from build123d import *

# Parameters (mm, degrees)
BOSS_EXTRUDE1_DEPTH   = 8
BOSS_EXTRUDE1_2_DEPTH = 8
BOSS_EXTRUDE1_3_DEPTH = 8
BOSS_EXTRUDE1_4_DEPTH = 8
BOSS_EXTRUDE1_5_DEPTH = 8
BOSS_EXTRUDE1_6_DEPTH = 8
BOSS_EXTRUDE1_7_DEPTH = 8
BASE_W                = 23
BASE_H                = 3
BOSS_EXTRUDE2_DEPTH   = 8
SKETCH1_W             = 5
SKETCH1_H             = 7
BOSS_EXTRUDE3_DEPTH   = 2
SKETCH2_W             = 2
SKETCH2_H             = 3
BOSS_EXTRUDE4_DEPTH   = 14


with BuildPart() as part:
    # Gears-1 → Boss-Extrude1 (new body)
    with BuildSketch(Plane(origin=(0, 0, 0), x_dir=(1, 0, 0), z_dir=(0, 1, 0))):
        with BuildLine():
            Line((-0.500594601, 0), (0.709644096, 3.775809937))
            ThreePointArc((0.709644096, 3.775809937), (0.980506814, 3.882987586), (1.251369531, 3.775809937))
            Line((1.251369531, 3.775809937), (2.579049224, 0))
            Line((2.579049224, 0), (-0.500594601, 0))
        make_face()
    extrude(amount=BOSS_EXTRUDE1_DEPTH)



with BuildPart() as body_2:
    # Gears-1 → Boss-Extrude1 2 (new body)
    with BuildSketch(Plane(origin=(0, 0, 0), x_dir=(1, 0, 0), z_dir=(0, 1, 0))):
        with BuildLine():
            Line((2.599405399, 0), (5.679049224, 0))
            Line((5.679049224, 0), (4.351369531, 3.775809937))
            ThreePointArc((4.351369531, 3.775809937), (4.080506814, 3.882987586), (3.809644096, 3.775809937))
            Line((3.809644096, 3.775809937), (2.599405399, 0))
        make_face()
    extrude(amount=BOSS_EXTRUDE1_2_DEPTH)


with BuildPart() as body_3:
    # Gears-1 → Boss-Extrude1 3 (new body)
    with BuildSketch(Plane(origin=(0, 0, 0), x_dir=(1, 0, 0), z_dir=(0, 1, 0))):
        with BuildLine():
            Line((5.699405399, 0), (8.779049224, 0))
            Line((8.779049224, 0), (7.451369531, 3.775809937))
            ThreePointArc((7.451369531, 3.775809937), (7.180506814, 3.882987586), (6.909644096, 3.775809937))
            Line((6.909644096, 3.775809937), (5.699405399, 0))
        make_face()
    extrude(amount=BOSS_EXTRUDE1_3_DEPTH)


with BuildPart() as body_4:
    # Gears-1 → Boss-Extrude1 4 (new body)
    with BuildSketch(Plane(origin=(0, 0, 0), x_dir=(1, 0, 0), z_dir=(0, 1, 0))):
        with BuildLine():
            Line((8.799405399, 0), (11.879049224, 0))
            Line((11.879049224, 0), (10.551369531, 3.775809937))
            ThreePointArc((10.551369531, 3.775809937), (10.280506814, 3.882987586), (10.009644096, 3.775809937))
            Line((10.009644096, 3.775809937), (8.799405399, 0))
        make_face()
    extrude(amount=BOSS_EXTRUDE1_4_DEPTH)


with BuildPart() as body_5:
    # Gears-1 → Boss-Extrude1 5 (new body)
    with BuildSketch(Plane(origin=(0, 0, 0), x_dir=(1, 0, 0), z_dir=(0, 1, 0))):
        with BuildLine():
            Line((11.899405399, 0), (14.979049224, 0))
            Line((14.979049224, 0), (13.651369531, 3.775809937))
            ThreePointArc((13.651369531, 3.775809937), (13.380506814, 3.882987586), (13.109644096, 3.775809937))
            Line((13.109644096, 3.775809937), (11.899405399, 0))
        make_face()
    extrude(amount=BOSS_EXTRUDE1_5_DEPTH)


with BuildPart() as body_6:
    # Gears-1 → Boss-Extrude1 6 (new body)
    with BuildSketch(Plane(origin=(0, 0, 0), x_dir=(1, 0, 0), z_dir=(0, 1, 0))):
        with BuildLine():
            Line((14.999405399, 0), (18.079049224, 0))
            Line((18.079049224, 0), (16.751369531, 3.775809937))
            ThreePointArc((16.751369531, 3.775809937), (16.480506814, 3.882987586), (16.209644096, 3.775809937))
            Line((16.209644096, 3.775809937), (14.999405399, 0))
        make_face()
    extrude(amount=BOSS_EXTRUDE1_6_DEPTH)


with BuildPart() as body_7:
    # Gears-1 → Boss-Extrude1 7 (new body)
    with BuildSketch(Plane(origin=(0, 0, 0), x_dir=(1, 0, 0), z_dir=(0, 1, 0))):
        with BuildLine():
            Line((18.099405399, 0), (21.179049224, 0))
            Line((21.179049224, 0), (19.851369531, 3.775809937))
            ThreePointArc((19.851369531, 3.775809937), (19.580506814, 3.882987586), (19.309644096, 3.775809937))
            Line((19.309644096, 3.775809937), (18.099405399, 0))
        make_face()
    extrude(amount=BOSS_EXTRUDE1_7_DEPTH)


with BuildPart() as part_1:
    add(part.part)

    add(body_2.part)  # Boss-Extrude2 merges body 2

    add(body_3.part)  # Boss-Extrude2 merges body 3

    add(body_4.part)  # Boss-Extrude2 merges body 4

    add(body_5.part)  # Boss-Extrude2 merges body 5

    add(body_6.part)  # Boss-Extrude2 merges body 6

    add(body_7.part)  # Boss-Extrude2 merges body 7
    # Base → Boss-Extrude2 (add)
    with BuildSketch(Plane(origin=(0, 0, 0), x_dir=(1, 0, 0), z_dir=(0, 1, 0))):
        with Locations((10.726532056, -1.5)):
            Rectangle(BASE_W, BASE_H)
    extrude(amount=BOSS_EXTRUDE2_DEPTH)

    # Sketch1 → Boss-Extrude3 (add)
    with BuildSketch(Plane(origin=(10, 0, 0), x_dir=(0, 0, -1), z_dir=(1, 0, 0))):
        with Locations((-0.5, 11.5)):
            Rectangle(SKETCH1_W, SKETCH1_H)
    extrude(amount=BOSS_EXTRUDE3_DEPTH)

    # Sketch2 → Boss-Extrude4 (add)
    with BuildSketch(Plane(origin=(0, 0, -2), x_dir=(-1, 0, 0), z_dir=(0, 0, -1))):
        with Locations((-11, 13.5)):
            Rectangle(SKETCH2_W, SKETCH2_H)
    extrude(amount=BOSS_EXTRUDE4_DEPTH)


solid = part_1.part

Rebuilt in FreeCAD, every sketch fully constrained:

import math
import FreeCAD as App
import Part
import Sketcher

V = App.Vector


def add_polygon(sketch, points):
    """Adds a closed chain of lines whose ends are joined by coincident constraints."""
    first, n = sketch.GeometryCount, len(points)
    for a, b in zip(points, points[1:] + points[:1]):
        sketch.addGeometry(Part.LineSegment(App.Vector(*a, 0), App.Vector(*b, 0)), False)
    for i in range(n):
        sketch.addConstraint(Sketcher.Constraint("Coincident", first + i, 2, first + (i + 1) % n, 1))

doc = App.newDocument("Part")
body = doc.addObject("PartDesign::Body", "Body")

sketch1 = body.newObject("Sketcher::SketchObject", "Sketch")
sketch1.AttachmentSupport = (doc.getObject("XZ_Plane"), [""])
sketch1.MapMode = "FlatFace"
sketch1.addGeometry([
    Part.LineSegment(V(0.71, -3.78, 0), V(-0.5, 0, 0)),
    Part.LineSegment(V(-0.5, 0, 0), V(2.58, 0, 0)),
    Part.LineSegment(V(2.58, 0, 0), V(1.25, -3.78, 0)),
    Part.ArcOfCircle(Part.Circle(V(0.98, -3.49, 0), V(0, 0, 1), 0.4), math.radians(-133), math.radians(-47)),
], False)
sketch1.addConstraint([
    Sketcher.Constraint("Coincident", 0, 2, 1, 1),
    Sketcher.Constraint("Coincident", 1, 2, 2, 1),
    Sketcher.Constraint("Coincident", 2, 2, 3, 2),
    Sketcher.Constraint("Coincident", 3, 1, 0, 1),
    Sketcher.Constraint("Horizontal", 1),
    Sketcher.Constraint("PointOnObject", 0, 2, -1),
    Sketcher.Constraint("Horizontal", 2, 2, 3, 1),
    Sketcher.Constraint("Radius", 3, 0.395855),
    Sketcher.Constraint("DistanceX", 0, 2, 3, 3, 1.481101),
    Sketcher.Constraint("DistanceX", 1, 1, 1, 2, 3.079644),
    Sketcher.Constraint("DistanceX", -1, 1, 1, 2, 2.579049),
    Sketcher.Constraint("DistanceX", -1, 1, 2, 2, 1.25137),
    Sketcher.Constraint("DistanceY", 2, 2, -1, 1, 3.77581),
])
pad1 = body.newObject("PartDesign::Pad", "Pad")
pad1.Profile = sketch1
pad1.Length = 8
pad1.Reversed = True
body2 = doc.addObject("PartDesign::Body", "Body001")

sketch2 = body2.newObject("Sketcher::SketchObject", "Sketch001")
sketch2.AttachmentSupport = (doc.getObject("XZ_Plane001"), [""])
sketch2.MapMode = "FlatFace"
sketch2.addGeometry([
    Part.LineSegment(V(2.6, 0, 0), V(5.68, 0, 0)),
    Part.LineSegment(V(5.68, 0, 0), V(4.35, -3.78, 0)),
    Part.ArcOfCircle(Part.Circle(V(4.08, -3.49, 0), V(0, 0, 1), 0.4), math.radians(-133), math.radians(-47)),
    Part.LineSegment(V(3.81, -3.78, 0), V(2.6, 0, 0)),
], False)
sketch2.addConstraint([
    Sketcher.Constraint("Coincident", 0, 2, 1, 1),
    Sketcher.Constraint("Coincident", 1, 2, 2, 2),
    Sketcher.Constraint("Coincident", 2, 1, 3, 1),
    Sketcher.Constraint("Coincident", 3, 2, 0, 1),
    Sketcher.Constraint("Horizontal", 0),
    Sketcher.Constraint("PointOnObject", 0, 2, -1),
    Sketcher.Constraint("Horizontal", 1, 2, 2, 1),
    Sketcher.Constraint("Radius", 2, 0.395855),
    Sketcher.Constraint("DistanceX", 3, 2, 2, 3, 1.481101),
    Sketcher.Constraint("DistanceX", 0, 1, 0, 2, 3.079644),
    Sketcher.Constraint("DistanceX", -1, 1, 0, 2, 5.679049),
    Sketcher.Constraint("DistanceX", -1, 1, 1, 2, 4.35137),
    Sketcher.Constraint("DistanceY", 1, 2, -1, 1, 3.77581),
])
pad2 = body2.newObject("PartDesign::Pad", "Pad001")
pad2.Profile = sketch2
pad2.Length = 8
pad2.Reversed = True
body3 = doc.addObject("PartDesign::Body", "Body002")

sketch3 = body3.newObject("Sketcher::SketchObject", "Sketch002")
sketch3.AttachmentSupport = (doc.getObject("XZ_Plane002"), [""])
sketch3.MapMode = "FlatFace"
sketch3.addGeometry([
    Part.LineSegment(V(5.7, 0, 0), V(8.78, 0, 0)),
    Part.LineSegment(V(8.78, 0, 0), V(7.45, -3.78, 0)),
    Part.ArcOfCircle(Part.Circle(V(7.18, -3.49, 0), V(0, 0, 1), 0.4), math.radians(-133), math.radians(-47)),
    Part.LineSegment(V(6.91, -3.78, 0), V(5.7, 0, 0)),
], False)
sketch3.addConstraint([
    Sketcher.Constraint("Coincident", 0, 2, 1, 1),
    Sketcher.Constraint("Coincident", 1, 2, 2, 2),
    Sketcher.Constraint("Coincident", 2, 1, 3, 1),
    Sketcher.Constraint("Coincident", 3, 2, 0, 1),
    Sketcher.Constraint("Horizontal", 0),
    Sketcher.Constraint("PointOnObject", 0, 2, -1),
    Sketcher.Constraint("Horizontal", 1, 2, 2, 1),
    Sketcher.Constraint("Radius", 2, 0.395855),
    Sketcher.Constraint("DistanceX", 3, 2, 2, 3, 1.481101),
    Sketcher.Constraint("DistanceX", 0, 1, 0, 2, 3.079644),
    Sketcher.Constraint("DistanceX", -1, 1, 0, 2, 8.779049),
    Sketcher.Constraint("DistanceX", -1, 1, 1, 2, 7.45137),
    Sketcher.Constraint("DistanceY", 1, 2, -1, 1, 3.77581),
])
pad3 = body3.newObject("PartDesign::Pad", "Pad002")
pad3.Profile = sketch3
pad3.Length = 8
pad3.Reversed = True
body4 = doc.addObject("PartDesign::Body", "Body003")

sketch4 = body4.newObject("Sketcher::SketchObject", "Sketch003")
sketch4.AttachmentSupport = (doc.getObject("XZ_Plane003"), [""])
sketch4.MapMode = "FlatFace"
sketch4.addGeometry([
    Part.LineSegment(V(8.8, 0, 0), V(11.88, 0, 0)),
    Part.LineSegment(V(11.88, 0, 0), V(10.55, -3.78, 0)),
    Part.ArcOfCircle(Part.Circle(V(10.28, -3.49, 0), V(0, 0, 1), 0.4), math.radians(-133), math.radians(-47)),
    Part.LineSegment(V(10.01, -3.78, 0), V(8.8, 0, 0)),
], False)
sketch4.addConstraint([
    Sketcher.Constraint("Coincident", 0, 2, 1, 1),
    Sketcher.Constraint("Coincident", 1, 2, 2, 2),
    Sketcher.Constraint("Coincident", 2, 1, 3, 1),
    Sketcher.Constraint("Coincident", 3, 2, 0, 1),
    Sketcher.Constraint("Horizontal", 0),
    Sketcher.Constraint("PointOnObject", 0, 2, -1),
    Sketcher.Constraint("Horizontal", 1, 2, 2, 1),
    Sketcher.Constraint("Radius", 2, 0.395855),
    Sketcher.Constraint("DistanceX", 3, 2, 2, 3, 1.481101),
    Sketcher.Constraint("DistanceX", 0, 1, 0, 2, 3.079644),
    Sketcher.Constraint("DistanceX", -1, 1, 0, 2, 11.879049),
    Sketcher.Constraint("DistanceX", -1, 1, 1, 2, 10.55137),
    Sketcher.Constraint("DistanceY", 1, 2, -1, 1, 3.77581),
])
pad4 = body4.newObject("PartDesign::Pad", "Pad003")
pad4.Profile = sketch4
pad4.Length = 8
pad4.Reversed = True
body5 = doc.addObject("PartDesign::Body", "Body004")

sketch5 = body5.newObject("Sketcher::SketchObject", "Sketch004")
sketch5.AttachmentSupport = (doc.getObject("XZ_Plane004"), [""])
sketch5.MapMode = "FlatFace"
sketch5.addGeometry([
    Part.LineSegment(V(11.9, 0, 0), V(14.98, 0, 0)),
    Part.LineSegment(V(14.98, 0, 0), V(13.65, -3.78, 0)),
    Part.ArcOfCircle(Part.Circle(V(13.38, -3.49, 0), V(0, 0, 1), 0.4), math.radians(-133), math.radians(-47)),
    Part.LineSegment(V(13.11, -3.78, 0), V(11.9, 0, 0)),
], False)
sketch5.addConstraint([
    Sketcher.Constraint("Coincident", 0, 2, 1, 1),
    Sketcher.Constraint("Coincident", 1, 2, 2, 2),
    Sketcher.Constraint("Coincident", 2, 1, 3, 1),
    Sketcher.Constraint("Coincident", 3, 2, 0, 1),
    Sketcher.Constraint("Horizontal", 0),
    Sketcher.Constraint("PointOnObject", 0, 2, -1),
    Sketcher.Constraint("Horizontal", 1, 2, 2, 1),
    Sketcher.Constraint("Radius", 2, 0.395855),
    Sketcher.Constraint("DistanceX", 3, 2, 2, 3, 1.481101),
    Sketcher.Constraint("DistanceX", 0, 1, 0, 2, 3.079644),
    Sketcher.Constraint("DistanceX", -1, 1, 0, 2, 14.979049),
    Sketcher.Constraint("DistanceX", -1, 1, 1, 2, 13.65137),
    Sketcher.Constraint("DistanceY", 1, 2, -1, 1, 3.77581),
])
pad5 = body5.newObject("PartDesign::Pad", "Pad004")
pad5.Profile = sketch5
pad5.Length = 8
pad5.Reversed = True
body6 = doc.addObject("PartDesign::Body", "Body005")

sketch6 = body6.newObject("Sketcher::SketchObject", "Sketch005")
sketch6.AttachmentSupport = (doc.getObject("XZ_Plane005"), [""])
sketch6.MapMode = "FlatFace"
sketch6.addGeometry([
    Part.LineSegment(V(15, 0, 0), V(18.08, 0, 0)),
    Part.LineSegment(V(18.08, 0, 0), V(16.75, -3.78, 0)),
    Part.ArcOfCircle(Part.Circle(V(16.48, -3.49, 0), V(0, 0, 1), 0.4), math.radians(-133), math.radians(-47)),
    Part.LineSegment(V(16.21, -3.78, 0), V(15, 0, 0)),
], False)
sketch6.addConstraint([
    Sketcher.Constraint("Coincident", 0, 2, 1, 1),
    Sketcher.Constraint("Coincident", 1, 2, 2, 2),
    Sketcher.Constraint("Coincident", 2, 1, 3, 1),
    Sketcher.Constraint("Coincident", 3, 2, 0, 1),
    Sketcher.Constraint("Horizontal", 0),
    Sketcher.Constraint("PointOnObject", 0, 2, -1),
    Sketcher.Constraint("Horizontal", 1, 2, 2, 1),
    Sketcher.Constraint("Radius", 2, 0.395855),
    Sketcher.Constraint("DistanceX", 3, 2, 2, 3, 1.481101),
    Sketcher.Constraint("DistanceX", 0, 1, 0, 2, 3.079644),
    Sketcher.Constraint("DistanceX", -1, 1, 0, 2, 18.079049),
    Sketcher.Constraint("DistanceX", -1, 1, 1, 2, 16.75137),
    Sketcher.Constraint("DistanceY", 1, 2, -1, 1, 3.77581),
])
pad6 = body6.newObject("PartDesign::Pad", "Pad005")
pad6.Profile = sketch6
pad6.Length = 8
pad6.Reversed = True
body7 = doc.addObject("PartDesign::Body", "Body006")

sketch7 = body7.newObject("Sketcher::SketchObject", "Sketch006")
sketch7.AttachmentSupport = (doc.getObject("XZ_Plane006"), [""])
sketch7.MapMode = "FlatFace"
sketch7.addGeometry([
    Part.LineSegment(V(18.1, 0, 0), V(21.18, 0, 0)),
    Part.LineSegment(V(21.18, 0, 0), V(19.85, -3.78, 0)),
    Part.ArcOfCircle(Part.Circle(V(19.58, -3.49, 0), V(0, 0, 1), 0.4), math.radians(-133), math.radians(-47)),
    Part.LineSegment(V(19.31, -3.78, 0), V(18.1, 0, 0)),
], False)
sketch7.addConstraint([
    Sketcher.Constraint("Coincident", 0, 2, 1, 1),
    Sketcher.Constraint("Coincident", 1, 2, 2, 2),
    Sketcher.Constraint("Coincident", 2, 1, 3, 1),
    Sketcher.Constraint("Coincident", 3, 2, 0, 1),
    Sketcher.Constraint("Horizontal", 0),
    Sketcher.Constraint("PointOnObject", 0, 2, -1),
    Sketcher.Constraint("Horizontal", 1, 2, 2, 1),
    Sketcher.Constraint("Radius", 2, 0.395855),
    Sketcher.Constraint("DistanceX", 3, 2, 2, 3, 1.481101),
    Sketcher.Constraint("DistanceX", 0, 1, 0, 2, 3.079644),
    Sketcher.Constraint("DistanceX", -1, 1, 0, 2, 21.179049),
    Sketcher.Constraint("DistanceX", -1, 1, 1, 2, 19.85137),
    Sketcher.Constraint("DistanceY", 1, 2, -1, 1, 3.77581),
])
pad7 = body7.newObject("PartDesign::Pad", "Pad006")
pad7.Profile = sketch7
pad7.Length = 8
pad7.Reversed = True
body.AllowCompound = True
doc.recompute()

boolean = body.newObject("PartDesign::Boolean", "Boolean")
boolean.Type = "Fuse"
boolean.addObjects([body2])
doc.recompute()

boolean2 = body.newObject("PartDesign::Boolean", "Boolean001")
boolean2.Type = "Fuse"
boolean2.addObjects([body3])
doc.recompute()

boolean3 = body.newObject("PartDesign::Boolean", "Boolean002")
boolean3.Type = "Fuse"
boolean3.addObjects([body4])
doc.recompute()

boolean4 = body.newObject("PartDesign::Boolean", "Boolean003")
boolean4.Type = "Fuse"
boolean4.addObjects([body5])
doc.recompute()

boolean5 = body.newObject("PartDesign::Boolean", "Boolean004")
boolean5.Type = "Fuse"
boolean5.addObjects([body6])
doc.recompute()

boolean6 = body.newObject("PartDesign::Boolean", "Boolean005")
boolean6.Type = "Fuse"
boolean6.addObjects([body7])

sketch8 = body.newObject("Sketcher::SketchObject", "Sketch007")
sketch8.AttachmentSupport = (doc.getObject("XZ_Plane"), [""])
sketch8.MapMode = "FlatFace"
add_polygon(sketch8, [(-0.8, 0), (-0.8, 3), (22.2, 3), (22.2, 0)])
sketch8.addConstraint([
    Sketcher.Constraint("Vertical", 0),
    Sketcher.Constraint("Horizontal", 1),
    Sketcher.Constraint("Vertical", 2),
    Sketcher.Constraint("Horizontal", 3),
    Sketcher.Constraint("PointOnObject", 2, 2, -1),
    Sketcher.Constraint("DistanceX", 1, 1, 1, 2, 23.0),
    Sketcher.Constraint("DistanceY", 0, 1, 0, 2, 3.0),
    Sketcher.Constraint("DistanceX", 0, 2, -1, 1, 0.773468),
])
pad8 = body.newObject("PartDesign::Pad", "Pad007")
pad8.Profile = sketch8
pad8.Length = 8
pad8.Reversed = True

sketch9 = body.newObject("Sketcher::SketchObject", "Sketch008")
sketch9.AttachmentSupport = (doc.getObject("YZ_Plane"), [""])
sketch9.MapMode = "FlatFace"
sketch9.AttachmentOffset = App.Placement(V(0, 0, 10), App.Rotation())
add_polygon(sketch9, [(15, 3), (8, 3), (8, -2), (15, -2)])
sketch9.addConstraint([
    Sketcher.Constraint("Horizontal", 0),
    Sketcher.Constraint("Vertical", 1),
    Sketcher.Constraint("Horizontal", 2),
    Sketcher.Constraint("Vertical", 3),
    Sketcher.Constraint("DistanceX", 0, 2, 0, 1, 7.0),
    Sketcher.Constraint("DistanceY", 1, 2, 1, 1, 5.0),
    Sketcher.Constraint("DistanceX", -1, 1, 0, 2, 8.0),
    Sketcher.Constraint("DistanceY", -1, 1, 0, 2, 3.0),
])
pad9 = body.newObject("PartDesign::Pad", "Pad008")
pad9.Profile = sketch9
pad9.Length = 2

sketch10 = body.newObject("Sketcher::SketchObject", "Sketch009")
sketch10.AttachmentSupport = (doc.getObject("XY_Plane"), [""])
sketch10.MapMode = "FlatFace"
sketch10.AttachmentOffset = App.Placement(V(0, 0, -2), App.Rotation())
add_polygon(sketch10, [(12, 15), (12, 12), (10, 12), (10, 15)])
sketch10.addConstraint([
    Sketcher.Constraint("Vertical", 0),
    Sketcher.Constraint("Horizontal", 1),
    Sketcher.Constraint("Vertical", 2),
    Sketcher.Constraint("Horizontal", 3),
    Sketcher.Constraint("DistanceX", 1, 2, 1, 1, 2.0),
    Sketcher.Constraint("DistanceY", 0, 2, 0, 1, 3.0),
    Sketcher.Constraint("DistanceX", -1, 1, 0, 2, 12.0),
    Sketcher.Constraint("DistanceY", -1, 1, 0, 2, 12.0),
])
pad10 = body.newObject("PartDesign::Pad", "Pad009")
pad10.Profile = sketch10
pad10.Length = 14
pad10.Reversed = True

doc.recompute()
